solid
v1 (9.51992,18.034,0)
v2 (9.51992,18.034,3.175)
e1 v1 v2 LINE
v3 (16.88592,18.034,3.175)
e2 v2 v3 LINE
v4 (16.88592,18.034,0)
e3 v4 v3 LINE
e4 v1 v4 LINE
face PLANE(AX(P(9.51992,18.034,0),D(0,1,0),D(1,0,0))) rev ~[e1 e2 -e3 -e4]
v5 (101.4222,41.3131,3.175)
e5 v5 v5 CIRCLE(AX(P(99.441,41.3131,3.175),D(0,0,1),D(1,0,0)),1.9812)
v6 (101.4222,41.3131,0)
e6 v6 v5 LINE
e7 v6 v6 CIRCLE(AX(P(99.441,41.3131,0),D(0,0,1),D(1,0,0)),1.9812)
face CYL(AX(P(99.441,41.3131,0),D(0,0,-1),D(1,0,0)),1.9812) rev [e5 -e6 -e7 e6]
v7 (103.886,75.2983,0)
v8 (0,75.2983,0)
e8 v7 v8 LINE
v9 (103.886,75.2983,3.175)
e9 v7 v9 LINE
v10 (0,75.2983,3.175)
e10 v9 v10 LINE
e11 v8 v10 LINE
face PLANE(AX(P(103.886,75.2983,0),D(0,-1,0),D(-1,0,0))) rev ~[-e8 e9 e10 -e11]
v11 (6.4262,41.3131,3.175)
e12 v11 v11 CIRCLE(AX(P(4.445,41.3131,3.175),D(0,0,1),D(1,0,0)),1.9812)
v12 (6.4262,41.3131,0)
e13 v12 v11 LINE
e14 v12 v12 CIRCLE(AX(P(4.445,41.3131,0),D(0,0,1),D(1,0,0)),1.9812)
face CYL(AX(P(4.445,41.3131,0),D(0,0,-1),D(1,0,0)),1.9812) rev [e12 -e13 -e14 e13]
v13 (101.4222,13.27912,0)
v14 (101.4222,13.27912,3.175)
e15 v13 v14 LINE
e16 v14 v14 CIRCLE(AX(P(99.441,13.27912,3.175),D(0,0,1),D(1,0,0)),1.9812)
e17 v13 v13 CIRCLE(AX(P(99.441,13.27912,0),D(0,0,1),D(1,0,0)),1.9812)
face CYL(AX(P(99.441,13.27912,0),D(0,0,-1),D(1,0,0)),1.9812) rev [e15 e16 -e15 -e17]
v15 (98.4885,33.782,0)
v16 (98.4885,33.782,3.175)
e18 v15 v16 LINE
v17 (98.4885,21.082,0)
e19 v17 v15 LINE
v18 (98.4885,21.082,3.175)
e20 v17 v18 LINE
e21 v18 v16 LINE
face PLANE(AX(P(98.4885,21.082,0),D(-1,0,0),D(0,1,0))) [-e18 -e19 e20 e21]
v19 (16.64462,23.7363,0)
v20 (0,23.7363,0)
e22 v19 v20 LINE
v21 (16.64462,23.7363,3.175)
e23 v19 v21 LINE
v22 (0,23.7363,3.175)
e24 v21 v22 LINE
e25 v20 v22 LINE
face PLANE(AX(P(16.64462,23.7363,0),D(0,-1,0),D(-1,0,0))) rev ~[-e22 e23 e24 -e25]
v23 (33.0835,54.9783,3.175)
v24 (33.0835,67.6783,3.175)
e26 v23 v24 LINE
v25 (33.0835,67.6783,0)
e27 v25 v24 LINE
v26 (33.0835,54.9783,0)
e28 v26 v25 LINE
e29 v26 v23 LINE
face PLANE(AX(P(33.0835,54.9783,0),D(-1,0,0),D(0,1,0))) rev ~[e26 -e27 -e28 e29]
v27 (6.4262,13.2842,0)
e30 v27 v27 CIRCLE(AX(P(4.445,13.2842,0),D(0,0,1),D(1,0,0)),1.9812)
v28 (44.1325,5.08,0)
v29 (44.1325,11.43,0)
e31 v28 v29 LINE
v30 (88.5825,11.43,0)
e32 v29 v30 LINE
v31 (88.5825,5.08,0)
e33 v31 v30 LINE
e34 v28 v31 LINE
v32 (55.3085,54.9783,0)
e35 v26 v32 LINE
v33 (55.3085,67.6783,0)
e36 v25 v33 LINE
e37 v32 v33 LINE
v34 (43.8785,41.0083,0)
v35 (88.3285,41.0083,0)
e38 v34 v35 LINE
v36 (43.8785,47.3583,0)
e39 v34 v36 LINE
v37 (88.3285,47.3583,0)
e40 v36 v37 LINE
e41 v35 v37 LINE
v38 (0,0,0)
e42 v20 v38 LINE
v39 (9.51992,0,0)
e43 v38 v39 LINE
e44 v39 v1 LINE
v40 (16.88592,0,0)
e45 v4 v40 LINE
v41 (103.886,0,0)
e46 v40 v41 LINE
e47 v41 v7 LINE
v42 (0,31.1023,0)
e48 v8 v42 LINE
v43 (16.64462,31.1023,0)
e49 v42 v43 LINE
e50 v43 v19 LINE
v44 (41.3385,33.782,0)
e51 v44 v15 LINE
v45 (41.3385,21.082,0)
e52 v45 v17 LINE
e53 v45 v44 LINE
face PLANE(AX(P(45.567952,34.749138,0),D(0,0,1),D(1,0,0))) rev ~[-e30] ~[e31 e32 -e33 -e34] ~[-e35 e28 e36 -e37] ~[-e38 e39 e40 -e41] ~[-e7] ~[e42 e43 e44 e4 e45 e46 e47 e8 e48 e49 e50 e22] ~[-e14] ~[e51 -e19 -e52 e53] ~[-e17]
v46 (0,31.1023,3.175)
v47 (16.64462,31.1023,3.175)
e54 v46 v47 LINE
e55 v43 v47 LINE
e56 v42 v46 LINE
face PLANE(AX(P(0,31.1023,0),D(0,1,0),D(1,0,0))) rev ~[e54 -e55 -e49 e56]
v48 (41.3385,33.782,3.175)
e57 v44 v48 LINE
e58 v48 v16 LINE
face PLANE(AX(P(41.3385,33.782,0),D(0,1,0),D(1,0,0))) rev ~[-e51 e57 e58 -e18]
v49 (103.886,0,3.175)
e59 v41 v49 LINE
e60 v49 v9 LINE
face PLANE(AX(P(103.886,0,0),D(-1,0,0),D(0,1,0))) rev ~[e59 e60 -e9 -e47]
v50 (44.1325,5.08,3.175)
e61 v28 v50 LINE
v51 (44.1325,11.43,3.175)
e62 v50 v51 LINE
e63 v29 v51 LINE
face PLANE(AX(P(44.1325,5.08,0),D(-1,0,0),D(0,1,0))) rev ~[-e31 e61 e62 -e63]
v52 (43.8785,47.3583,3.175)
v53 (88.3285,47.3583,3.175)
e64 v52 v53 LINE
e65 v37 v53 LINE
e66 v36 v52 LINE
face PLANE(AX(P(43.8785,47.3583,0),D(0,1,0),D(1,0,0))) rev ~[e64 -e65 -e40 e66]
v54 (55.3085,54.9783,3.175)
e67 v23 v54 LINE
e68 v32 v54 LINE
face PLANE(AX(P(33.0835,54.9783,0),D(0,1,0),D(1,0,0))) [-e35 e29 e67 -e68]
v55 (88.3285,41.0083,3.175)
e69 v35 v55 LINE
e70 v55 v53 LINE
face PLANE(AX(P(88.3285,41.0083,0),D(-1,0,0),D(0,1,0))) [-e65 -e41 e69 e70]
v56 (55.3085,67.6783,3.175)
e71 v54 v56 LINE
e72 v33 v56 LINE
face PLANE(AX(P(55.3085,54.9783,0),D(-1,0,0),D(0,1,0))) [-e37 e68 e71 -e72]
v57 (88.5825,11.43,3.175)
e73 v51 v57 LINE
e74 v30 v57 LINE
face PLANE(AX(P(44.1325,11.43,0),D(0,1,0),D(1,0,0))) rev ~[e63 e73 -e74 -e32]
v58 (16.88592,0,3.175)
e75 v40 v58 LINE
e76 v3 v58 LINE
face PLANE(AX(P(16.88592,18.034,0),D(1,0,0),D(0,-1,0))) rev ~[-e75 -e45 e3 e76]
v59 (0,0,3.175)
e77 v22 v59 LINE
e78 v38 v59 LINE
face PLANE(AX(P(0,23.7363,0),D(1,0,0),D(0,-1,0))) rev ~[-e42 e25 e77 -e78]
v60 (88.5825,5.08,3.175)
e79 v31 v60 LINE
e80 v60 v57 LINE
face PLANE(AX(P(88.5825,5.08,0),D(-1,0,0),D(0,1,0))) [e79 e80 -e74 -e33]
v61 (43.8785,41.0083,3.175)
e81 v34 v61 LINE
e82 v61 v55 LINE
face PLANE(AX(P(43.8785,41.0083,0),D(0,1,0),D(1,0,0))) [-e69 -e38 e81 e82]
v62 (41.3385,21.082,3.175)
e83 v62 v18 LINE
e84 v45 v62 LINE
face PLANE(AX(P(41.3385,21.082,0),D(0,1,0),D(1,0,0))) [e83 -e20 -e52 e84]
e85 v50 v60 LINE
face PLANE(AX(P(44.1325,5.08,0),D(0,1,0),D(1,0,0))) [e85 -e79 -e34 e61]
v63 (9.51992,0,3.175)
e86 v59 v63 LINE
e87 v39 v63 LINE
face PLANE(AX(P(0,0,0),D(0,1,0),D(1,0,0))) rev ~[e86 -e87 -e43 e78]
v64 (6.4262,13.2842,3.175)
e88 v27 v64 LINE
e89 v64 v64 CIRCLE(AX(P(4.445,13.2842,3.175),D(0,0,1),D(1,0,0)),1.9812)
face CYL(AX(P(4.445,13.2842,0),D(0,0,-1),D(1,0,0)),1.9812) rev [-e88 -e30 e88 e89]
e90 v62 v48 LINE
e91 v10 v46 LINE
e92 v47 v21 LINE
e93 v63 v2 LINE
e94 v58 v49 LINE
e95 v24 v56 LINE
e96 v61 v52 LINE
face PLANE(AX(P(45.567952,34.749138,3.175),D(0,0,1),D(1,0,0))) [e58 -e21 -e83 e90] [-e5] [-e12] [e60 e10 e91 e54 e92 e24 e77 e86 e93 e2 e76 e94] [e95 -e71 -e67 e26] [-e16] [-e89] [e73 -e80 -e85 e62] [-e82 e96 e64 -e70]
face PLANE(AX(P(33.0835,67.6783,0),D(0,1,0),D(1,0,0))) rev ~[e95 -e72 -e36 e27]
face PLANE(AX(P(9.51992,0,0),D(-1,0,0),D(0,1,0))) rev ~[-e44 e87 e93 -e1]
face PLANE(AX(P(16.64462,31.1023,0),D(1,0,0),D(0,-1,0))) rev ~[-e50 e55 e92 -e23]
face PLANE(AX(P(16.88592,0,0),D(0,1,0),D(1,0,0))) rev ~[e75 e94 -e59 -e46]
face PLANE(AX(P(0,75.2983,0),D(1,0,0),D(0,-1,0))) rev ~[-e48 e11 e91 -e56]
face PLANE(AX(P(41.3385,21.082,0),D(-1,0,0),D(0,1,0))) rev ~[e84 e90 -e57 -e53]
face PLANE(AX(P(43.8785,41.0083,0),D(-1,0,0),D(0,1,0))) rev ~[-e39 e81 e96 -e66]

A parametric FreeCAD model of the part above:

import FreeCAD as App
import Part
import Sketcher

V = App.Vector
Q = App.Units.Quantity


def add_polygon(sketch, points):
    """Adds a closed chain of lines whose ends are joined by coincident constraints."""
    first, n = sketch.GeometryCount, len(points)
    for a, b in zip(points, points[1:] + points[:1]):
        sketch.addGeometry(Part.LineSegment(App.Vector(*a, 0), App.Vector(*b, 0)), False)
    for i in range(n):
        sketch.addConstraint(Sketcher.Constraint("Coincident", first + i, 2, first + (i + 1) % n, 1))

doc = App.newDocument("Part")
body = doc.addObject("PartDesign::Body", "Body")

sketch1 = doc.addObject("Sketcher::SketchObject", "Sketch")
body.addObject(sketch1)
sketch1.AttachmentSupport = (doc.XY_Plane, [""])
sketch1.MapMode = "FlatFace"
add_polygon(sketch1, [(0, 23.7363), (0, 0), (9.51992, 0), (9.51992, 18.034), (16.88592, 18.034), (16.88592, 0), (103.886, 0), (103.886, 75.2983), (0, 75.2983), (0, 31.1023), (16.64462, 31.1023), (16.64462, 23.7363)])
sketch1.addGeometry(Part.Circle(V(4.445, 13.2842, 0), V(0, 0, 1), 1.9812), False)
add_polygon(sketch1, [(88.5825, 5.08), (44.1325, 5.08), (44.1325, 11.43), (88.5825, 11.43)])
sketch1.addGeometry(Part.Circle(V(99.441, 13.27912, 0), V(0, 0, 1), 1.9812), False)
add_polygon(sketch1, [(98.4885, 21.082), (41.3385, 21.082), (41.3385, 33.782), (98.4885, 33.782)])
sketch1.addGeometry(Part.Circle(V(4.445, 41.3131, 0), V(0, 0, 1), 1.9812), False)
add_polygon(sketch1, [(55.3085, 54.9783), (33.0835, 54.9783), (33.0835, 67.6783), (55.3085, 67.6783)])
add_polygon(sketch1, [(88.3285, 41.0083), (43.8785, 41.0083), (43.8785, 47.3583), (88.3285, 47.3583)])
sketch1.addGeometry(Part.Circle(V(99.441, 41.3131, 0), V(0, 0, 1), 1.9812), False)
sketch1.addConstraint(Sketcher.Constraint("Vertical", 0))
sketch1.addConstraint(Sketcher.Constraint("Horizontal", 1))
sketch1.addConstraint(Sketcher.Constraint("Vertical", 2))
sketch1.addConstraint(Sketcher.Constraint("Horizontal", 3))
sketch1.addConstraint(Sketcher.Constraint("Vertical", 4))
sketch1.addConstraint(Sketcher.Constraint("Horizontal", 5))
sketch1.addConstraint(Sketcher.Constraint("Vertical", 6))
sketch1.addConstraint(Sketcher.Constraint("Horizontal", 7))
sketch1.addConstraint(Sketcher.Constraint("Vertical", 8))
sketch1.addConstraint(Sketcher.Constraint("Horizontal", 9))
sketch1.addConstraint(Sketcher.Constraint("Vertical", 10))
sketch1.addConstraint(Sketcher.Constraint("Horizontal", 11))
sketch1.addConstraint(Sketcher.Constraint("Horizontal", 13))
sketch1.addConstraint(Sketcher.Constraint("Vertical", 14))
sketch1.addConstraint(Sketcher.Constraint("Horizontal", 15))
sketch1.addConstraint(Sketcher.Constraint("Vertical", 16))
sketch1.addConstraint(Sketcher.Constraint("Horizontal", 18))
sketch1.addConstraint(Sketcher.Constraint("Vertical", 19))
sketch1.addConstraint(Sketcher.Constraint("Horizontal", 20))
sketch1.addConstraint(Sketcher.Constraint("Vertical", 21))
sketch1.addConstraint(Sketcher.Constraint("Horizontal", 23))
sketch1.addConstraint(Sketcher.Constraint("Vertical", 24))
sketch1.addConstraint(Sketcher.Constraint("Horizontal", 25))
sketch1.addConstraint(Sketcher.Constraint("Vertical", 26))
sketch1.addConstraint(Sketcher.Constraint("Horizontal", 27))
sketch1.addConstraint(Sketcher.Constraint("Vertical", 28))
sketch1.addConstraint(Sketcher.Constraint("Horizontal", 29))
sketch1.addConstraint(Sketcher.Constraint("Vertical", 30))
sketch1.addConstraint(Sketcher.Constraint("Coincident", 0, 2, -1, 1))
sketch1.addConstraint(Sketcher.Constraint("Equal", 12, 17))
sketch1.addConstraint(Sketcher.Constraint("Equal", 17, 22))
sketch1.addConstraint(Sketcher.Constraint("Equal", 22, 31))
sketch1.addConstraint(Sketcher.Constraint("PointOnObject", 4, 2, -1))
sketch1.addConstraint(Sketcher.Constraint("PointOnObject", 7, 2, -2))
sketch1.addConstraint(Sketcher.Constraint("Horizontal", 22, 3, 31, 3))
sketch1.addConstraint(Sketcher.Constraint("Vertical", 12, 3, 22, 3))
sketch1.addConstraint(Sketcher.Constraint("Vertical", 17, 3, 31, 3))
sketch1.addConstraint(Sketcher.Constraint("Equal", 15, 27))
sketch1.addConstraint(Sketcher.Constraint("Equal", 3, 10))
sketch1.addConstraint(Sketcher.Constraint("Equal", 21, 24))
sketch1.addConstraint(Sketcher.Constraint("Equal", 16, 28))
sketch1.addConstraint(Sketcher.Constraint("Diameter", 12, Q("0.156 in")))
sketch1.addConstraint(Sketcher.Constraint("DistanceY", 19, 1, 19, 2, Q("0.5 in")))
sketch1.addConstraint(Sketcher.Constraint("DistanceX", 3, 1, 3, 2, Q("0.29 in")))
sketch1.addConstraint(Sketcher.Constraint("DistanceX", 7, 2, 7, 1, Q("4.09 in")))
sketch1.addConstraint(Sketcher.Constraint("DistanceX", 13, 2, 13, 1, Q("1.75 in")))
sketch1.addConstraint(Sketcher.Constraint("DistanceX", 18, 2, 18, 1, Q("2.25 in")))
sketch1.addConstraint(Sketcher.Constraint("DistanceY", 2, 1, 2, 2, Q("0.71 in")))
sketch1.addConstraint(Sketcher.Constraint("DistanceY", 8, 2, 8, 1, Q("1.74 in")))
sketch1.addConstraint(Sketcher.Constraint("DistanceY", 14, 1, 14, 2, Q("0.25 in")))
sketch1.addConstraint(Sketcher.Constraint("DistanceY", -1, 1, 13, 2, Q("0.2 in")))
sketch1.addConstraint(Sketcher.Constraint("DistanceY", 24, 2, 7, 2, Q("0.3 in")))
sketch1.addConstraint(Sketcher.Constraint("DistanceX", 19, 2, 27, 2, Q("0.1 in")))
sketch1.addConstraint(Sketcher.Constraint("DistanceY", 28, 2, 23, 2, Q("0.3 in")))
sketch1.addConstraint(Sketcher.Constraint("DistanceX", 26, 2, 29, 2, Q("1.3 in")))
sketch1.addConstraint(Sketcher.Constraint("DistanceX", 23, 2, 23, 1, Q("0.875 in")))
sketch1.addConstraint(Sketcher.Constraint("DistanceY", -1, 1, 18, 2, Q("0.83 in")))
sketch1.addConstraint(Sketcher.Constraint("DistanceX", 12, 3, 17, 3, Q("3.74 in")))
sketch1.addConstraint(Sketcher.Constraint("DistanceX", 18, 2, 14, 2, Q("0.11 in")))
sketch1.addConstraint(Sketcher.Constraint("DistanceX", 1, 1, 1, 2, Q("0.3748 in")))
sketch1.addConstraint(Sketcher.Constraint("DistanceX", 9, 1, 9, 2, Q("0.6553 in")))
sketch1.addConstraint(Sketcher.Constraint("DistanceY", 0, 2, 0, 1, Q("0.9345 in")))
sketch1.addConstraint(Sketcher.Constraint("DistanceX", -1, 1, 12, 3, Q("0.175 in")))
sketch1.addConstraint(Sketcher.Constraint("DistanceY", -1, 1, 12, 3, Q("0.523 in")))
sketch1.addConstraint(Sketcher.Constraint("DistanceY", 31, 3, 6, 2, Q("1.338 in")))
sketch1.addConstraint(Sketcher.Constraint("DistanceX", 29, 2, 31, 3, Q("0.4375 in")))
sketch1.addConstraint(Sketcher.Constraint("DistanceY", -1, 1, 17, 3, Q("0.5228 in")))
pad1 = doc.addObject("PartDesign::Pad", "Pad")
body.addObject(pad1)
pad1.Profile = sketch1
pad1.Length = Q("0.125 in")

doc.recompute()
